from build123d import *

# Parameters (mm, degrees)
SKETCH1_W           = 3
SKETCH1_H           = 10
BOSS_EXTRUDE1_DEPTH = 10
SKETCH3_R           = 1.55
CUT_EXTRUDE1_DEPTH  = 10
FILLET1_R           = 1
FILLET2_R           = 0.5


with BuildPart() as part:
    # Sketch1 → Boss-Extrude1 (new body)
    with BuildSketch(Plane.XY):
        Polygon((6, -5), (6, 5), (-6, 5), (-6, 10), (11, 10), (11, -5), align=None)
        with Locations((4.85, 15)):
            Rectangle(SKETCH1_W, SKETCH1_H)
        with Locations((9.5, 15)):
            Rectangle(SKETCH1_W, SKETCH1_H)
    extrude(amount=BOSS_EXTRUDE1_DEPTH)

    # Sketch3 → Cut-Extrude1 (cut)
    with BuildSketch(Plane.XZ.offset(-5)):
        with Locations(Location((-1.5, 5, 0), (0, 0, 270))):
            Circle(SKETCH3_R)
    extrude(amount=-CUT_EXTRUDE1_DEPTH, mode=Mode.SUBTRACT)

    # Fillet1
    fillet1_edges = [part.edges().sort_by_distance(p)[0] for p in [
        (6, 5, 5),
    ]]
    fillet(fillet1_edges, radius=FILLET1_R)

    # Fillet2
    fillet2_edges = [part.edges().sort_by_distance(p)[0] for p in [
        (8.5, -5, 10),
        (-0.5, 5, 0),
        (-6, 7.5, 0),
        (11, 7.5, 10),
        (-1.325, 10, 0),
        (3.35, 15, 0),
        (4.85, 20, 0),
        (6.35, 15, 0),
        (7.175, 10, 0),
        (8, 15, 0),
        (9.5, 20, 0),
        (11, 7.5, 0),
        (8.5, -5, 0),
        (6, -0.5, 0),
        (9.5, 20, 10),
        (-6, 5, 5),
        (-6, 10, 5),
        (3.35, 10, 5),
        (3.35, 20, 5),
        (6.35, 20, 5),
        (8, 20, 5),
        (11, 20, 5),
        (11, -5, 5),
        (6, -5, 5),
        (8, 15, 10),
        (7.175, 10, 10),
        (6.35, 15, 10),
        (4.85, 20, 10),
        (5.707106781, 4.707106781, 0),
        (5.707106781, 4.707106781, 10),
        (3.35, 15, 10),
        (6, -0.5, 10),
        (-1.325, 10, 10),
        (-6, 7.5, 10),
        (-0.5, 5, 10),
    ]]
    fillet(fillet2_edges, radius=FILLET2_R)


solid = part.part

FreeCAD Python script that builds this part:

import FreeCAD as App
import Part
import Sketcher

V = App.Vector
Q = App.Units.Quantity


def edges_at(feature, points):
    """Names of the edges that pass closest to the given points."""
    edges = feature.Shape.Edges
    near = lambda p: min(range(len(edges)), key=lambda i: edges[i].distToShape(Part.Vertex(*p))[0])
    return sorted({f"Edge{near(p) + 1}" for p in points})

doc = App.newDocument("Part")
body = doc.addObject("PartDesign::Body", "Body")

# Sketch on XY plane
sketch1 = doc.addObject("Sketcher::SketchObject", "Sketch")
body.addObject(sketch1)
sketch1.AttachmentSupport = (doc.XY_Plane, [""])
sketch1.MapMode = "FlatFace"
sketch1.addGeometry(Part.LineSegment(V(6, 5, 0), V(6, -5, 0)), False)
sketch1.addGeometry(Part.LineSegment(V(6, -5, 0), V(11, -5, 0)), False)
sketch1.addGeometry(Part.LineSegment(V(11, -5, 0), V(11, 20, 0)), False)
sketch1.addGeometry(Part.LineSegment(V(11, 20, 0), V(8, 20, 0)), False)
sketch1.addGeometry(Part.LineSegment(V(8, 20, 0), V(8, 10, 0)), False)
sketch1.addGeometry(Part.LineSegment(V(8, 10, 0), V(6.3, 10, 0)), False)
sketch1.addGeometry(Part.LineSegment(V(6.3, 10, 0), V(6.3, 20, 0)), False)
sketch1.addGeometry(Part.LineSegment(V(6.3, 20, 0), V(3.4, 20, 0)), False)
sketch1.addGeometry(Part.LineSegment(V(3.4, 20, 0), V(3.4, 10, 0)), False)
sketch1.addGeometry(Part.LineSegment(V(3.4, 10, 0), V(-6, 10, 0)), False)
sketch1.addGeometry(Part.LineSegment(V(-6, 10, 0), V(-6, 5, 0)), False)
sketch1.addGeometry(Part.LineSegment(V(-6, 5, 0), V(6, 5, 0)), False)
sketch1.addConstraint(Sketcher.Constraint("Coincident", 0, 2, 1, 1))
sketch1.addConstraint(Sketcher.Constraint("Coincident", 1, 2, 2, 1))
sketch1.addConstraint(Sketcher.Constraint("Coincident", 2, 2, 3, 1))
sketch1.addConstraint(Sketcher.Constraint("Coincident", 3, 2, 4, 1))
sketch1.addConstraint(Sketcher.Constraint("Coincident", 4, 2, 5, 1))
sketch1.addConstraint(Sketcher.Constraint("Coincident", 5, 2, 6, 1))
sketch1.addConstraint(Sketcher.Constraint("Coincident", 6, 2, 7, 1))
sketch1.addConstraint(Sketcher.Constraint("Coincident", 7, 2, 8, 1))
sketch1.addConstraint(Sketcher.Constraint("Coincident", 8, 2, 9, 1))
sketch1.addConstraint(Sketcher.Constraint("Coincident", 9, 2, 10, 1))
sketch1.addConstraint(Sketcher.Constraint("Coincident", 10, 2, 11, 1))
sketch1.addConstraint(Sketcher.Constraint("Coincident", 11, 2, 0, 1))
sketch1.addConstraint(Sketcher.Constraint("Vertical", 0))
sketch1.addConstraint(Sketcher.Constraint("Horizontal", 1))
sketch1.addConstraint(Sketcher.Constraint("Vertical", 2))
sketch1.addConstraint(Sketcher.Constraint("Horizontal", 3))
sketch1.addConstraint(Sketcher.Constraint("Vertical", 4))
sketch1.addConstraint(Sketcher.Constraint("Horizontal", 5))
sketch1.addConstraint(Sketcher.Constraint("Vertical", 6))
sketch1.addConstraint(Sketcher.Constraint("Horizontal", 7))
sketch1.addConstraint(Sketcher.Constraint("Vertical", 8))
sketch1.addConstraint(Sketcher.Constraint("Horizontal", 9))
sketch1.addConstraint(Sketcher.Constraint("Vertical", 10))
sketch1.addConstraint(Sketcher.Constraint("Horizontal", 11))
sketch1.addConstraint(Sketcher.Constraint("Symmetric", 0, 2, 10, 2, -1, 1))
sketch1.addConstraint(Sketcher.Constraint("Horizontal", 3, 2, 6, 2))
sketch1.addConstraint(Sketcher.Constraint("Horizontal", 5, 2, 8, 2))
sketch1.addConstraint(Sketcher.Constraint("Equal", 3, 7))
sketch1.addConstraint(Sketcher.Constraint("Equal", 0, 4))
sketch1.addConstraint(Sketcher.Constraint("Equal", 1, 10))
sketch1.addConstraint(Sketcher.Constraint("DistanceX", 1, 1, 1, 2, Q("5 mm")))
sketch1.addConstraint(Sketcher.Constraint("DistanceX", 3, 2, 3, 1, Q("3 mm")))
sketch1.addConstraint(Sketcher.Constraint("DistanceX", 11, 1, 11, 2, Q("12 mm")))
sketch1.addConstraint(Sketcher.Constraint("DistanceY", 0, 2, 0, 1, Q("10 mm")))
sketch1.addConstraint(Sketcher.Constraint("DistanceX", 5, 2, 5, 1, Q("1.65 mm")))
pad1 = doc.addObject("PartDesign::Pad", "Pad")
body.addObject(pad1)
pad1.Profile = sketch1
pad1.Length = 10

# Sketch on XZ plane
sketch2 = doc.addObject("Sketcher::SketchObject", "Sketch001")
body.addObject(sketch2)
sketch2.AttachmentSupport = (doc.XZ_Plane, [""])
sketch2.MapMode = "FlatFace"
sketch2.AttachmentOffset = App.Placement(V(0, 0, -5), App.Rotation())
sketch2.addGeometry(Part.Circle(V(-1.5, 5, 0), V(0, 0, 1), 1.6), False)
sketch2.addConstraint(Sketcher.Constraint("Diameter", 0, Q("3.1 mm")))
sketch2.addConstraint(Sketcher.Constraint("DistanceY", -1, 1, 0, 3, Q("5 mm")))
sketch2.addConstraint(Sketcher.Constraint("DistanceX", 0, 3, -1, 1, Q("1.5 mm")))
pocket1 = doc.addObject("PartDesign::Pocket", "Pocket")
body.addObject(pocket1)
pocket1.Profile = sketch2
pocket1.Length = 10
doc.recompute()

fillet = doc.addObject("PartDesign::Fillet", "Fillet")
body.addObject(fillet)
fillet.Base = (pocket1, edges_at(pocket1, [(6, 5, 5)]))
fillet.Radius = 1
doc.recompute()

fillet2 = doc.addObject("PartDesign::Fillet", "Fillet001")
body.addObject(fillet2)
fillet2.Base = (fillet, edges_at(fillet, [
    (8.5, -5, 10),
    (-0.5, 5, 0),
    (-6, 7.5, 0),
    (11, 7.5, 10),
    (-1.325, 10, 0),
    (3.35, 15, 0),
    (4.85, 20, 0),
    (6.35, 15, 0),
    (7.175, 10, 0),
    (8, 15, 0),
    (9.5, 20, 0),
    (11, 7.5, 0),
    (8.5, -5, 0),
    (6, -0.5, 0),
    (9.5, 20, 10),
    (-6, 5, 5),
    (-6, 10, 5),
    (3.35, 10, 5),
    (3.35, 20, 5),
    (6.35, 20, 5),
    (8, 20, 5),
    (11, 20, 5),
    (11, -5, 5),
    (6, -5, 5),
    (8, 15, 10),
    (7.175, 10, 10),
    (6.35, 15, 10),
    (4.85, 20, 10),
    (5.707, 4.707, 0),
    (5.707, 4.707, 10),
    (3.35, 15, 10),
    (6, -0.5, 10),
    (-1.325, 10, 10),
    (-6, 7.5, 10),
    (-0.5, 5, 10),
]))
fillet2.Radius = 0.5

doc.recompute()
